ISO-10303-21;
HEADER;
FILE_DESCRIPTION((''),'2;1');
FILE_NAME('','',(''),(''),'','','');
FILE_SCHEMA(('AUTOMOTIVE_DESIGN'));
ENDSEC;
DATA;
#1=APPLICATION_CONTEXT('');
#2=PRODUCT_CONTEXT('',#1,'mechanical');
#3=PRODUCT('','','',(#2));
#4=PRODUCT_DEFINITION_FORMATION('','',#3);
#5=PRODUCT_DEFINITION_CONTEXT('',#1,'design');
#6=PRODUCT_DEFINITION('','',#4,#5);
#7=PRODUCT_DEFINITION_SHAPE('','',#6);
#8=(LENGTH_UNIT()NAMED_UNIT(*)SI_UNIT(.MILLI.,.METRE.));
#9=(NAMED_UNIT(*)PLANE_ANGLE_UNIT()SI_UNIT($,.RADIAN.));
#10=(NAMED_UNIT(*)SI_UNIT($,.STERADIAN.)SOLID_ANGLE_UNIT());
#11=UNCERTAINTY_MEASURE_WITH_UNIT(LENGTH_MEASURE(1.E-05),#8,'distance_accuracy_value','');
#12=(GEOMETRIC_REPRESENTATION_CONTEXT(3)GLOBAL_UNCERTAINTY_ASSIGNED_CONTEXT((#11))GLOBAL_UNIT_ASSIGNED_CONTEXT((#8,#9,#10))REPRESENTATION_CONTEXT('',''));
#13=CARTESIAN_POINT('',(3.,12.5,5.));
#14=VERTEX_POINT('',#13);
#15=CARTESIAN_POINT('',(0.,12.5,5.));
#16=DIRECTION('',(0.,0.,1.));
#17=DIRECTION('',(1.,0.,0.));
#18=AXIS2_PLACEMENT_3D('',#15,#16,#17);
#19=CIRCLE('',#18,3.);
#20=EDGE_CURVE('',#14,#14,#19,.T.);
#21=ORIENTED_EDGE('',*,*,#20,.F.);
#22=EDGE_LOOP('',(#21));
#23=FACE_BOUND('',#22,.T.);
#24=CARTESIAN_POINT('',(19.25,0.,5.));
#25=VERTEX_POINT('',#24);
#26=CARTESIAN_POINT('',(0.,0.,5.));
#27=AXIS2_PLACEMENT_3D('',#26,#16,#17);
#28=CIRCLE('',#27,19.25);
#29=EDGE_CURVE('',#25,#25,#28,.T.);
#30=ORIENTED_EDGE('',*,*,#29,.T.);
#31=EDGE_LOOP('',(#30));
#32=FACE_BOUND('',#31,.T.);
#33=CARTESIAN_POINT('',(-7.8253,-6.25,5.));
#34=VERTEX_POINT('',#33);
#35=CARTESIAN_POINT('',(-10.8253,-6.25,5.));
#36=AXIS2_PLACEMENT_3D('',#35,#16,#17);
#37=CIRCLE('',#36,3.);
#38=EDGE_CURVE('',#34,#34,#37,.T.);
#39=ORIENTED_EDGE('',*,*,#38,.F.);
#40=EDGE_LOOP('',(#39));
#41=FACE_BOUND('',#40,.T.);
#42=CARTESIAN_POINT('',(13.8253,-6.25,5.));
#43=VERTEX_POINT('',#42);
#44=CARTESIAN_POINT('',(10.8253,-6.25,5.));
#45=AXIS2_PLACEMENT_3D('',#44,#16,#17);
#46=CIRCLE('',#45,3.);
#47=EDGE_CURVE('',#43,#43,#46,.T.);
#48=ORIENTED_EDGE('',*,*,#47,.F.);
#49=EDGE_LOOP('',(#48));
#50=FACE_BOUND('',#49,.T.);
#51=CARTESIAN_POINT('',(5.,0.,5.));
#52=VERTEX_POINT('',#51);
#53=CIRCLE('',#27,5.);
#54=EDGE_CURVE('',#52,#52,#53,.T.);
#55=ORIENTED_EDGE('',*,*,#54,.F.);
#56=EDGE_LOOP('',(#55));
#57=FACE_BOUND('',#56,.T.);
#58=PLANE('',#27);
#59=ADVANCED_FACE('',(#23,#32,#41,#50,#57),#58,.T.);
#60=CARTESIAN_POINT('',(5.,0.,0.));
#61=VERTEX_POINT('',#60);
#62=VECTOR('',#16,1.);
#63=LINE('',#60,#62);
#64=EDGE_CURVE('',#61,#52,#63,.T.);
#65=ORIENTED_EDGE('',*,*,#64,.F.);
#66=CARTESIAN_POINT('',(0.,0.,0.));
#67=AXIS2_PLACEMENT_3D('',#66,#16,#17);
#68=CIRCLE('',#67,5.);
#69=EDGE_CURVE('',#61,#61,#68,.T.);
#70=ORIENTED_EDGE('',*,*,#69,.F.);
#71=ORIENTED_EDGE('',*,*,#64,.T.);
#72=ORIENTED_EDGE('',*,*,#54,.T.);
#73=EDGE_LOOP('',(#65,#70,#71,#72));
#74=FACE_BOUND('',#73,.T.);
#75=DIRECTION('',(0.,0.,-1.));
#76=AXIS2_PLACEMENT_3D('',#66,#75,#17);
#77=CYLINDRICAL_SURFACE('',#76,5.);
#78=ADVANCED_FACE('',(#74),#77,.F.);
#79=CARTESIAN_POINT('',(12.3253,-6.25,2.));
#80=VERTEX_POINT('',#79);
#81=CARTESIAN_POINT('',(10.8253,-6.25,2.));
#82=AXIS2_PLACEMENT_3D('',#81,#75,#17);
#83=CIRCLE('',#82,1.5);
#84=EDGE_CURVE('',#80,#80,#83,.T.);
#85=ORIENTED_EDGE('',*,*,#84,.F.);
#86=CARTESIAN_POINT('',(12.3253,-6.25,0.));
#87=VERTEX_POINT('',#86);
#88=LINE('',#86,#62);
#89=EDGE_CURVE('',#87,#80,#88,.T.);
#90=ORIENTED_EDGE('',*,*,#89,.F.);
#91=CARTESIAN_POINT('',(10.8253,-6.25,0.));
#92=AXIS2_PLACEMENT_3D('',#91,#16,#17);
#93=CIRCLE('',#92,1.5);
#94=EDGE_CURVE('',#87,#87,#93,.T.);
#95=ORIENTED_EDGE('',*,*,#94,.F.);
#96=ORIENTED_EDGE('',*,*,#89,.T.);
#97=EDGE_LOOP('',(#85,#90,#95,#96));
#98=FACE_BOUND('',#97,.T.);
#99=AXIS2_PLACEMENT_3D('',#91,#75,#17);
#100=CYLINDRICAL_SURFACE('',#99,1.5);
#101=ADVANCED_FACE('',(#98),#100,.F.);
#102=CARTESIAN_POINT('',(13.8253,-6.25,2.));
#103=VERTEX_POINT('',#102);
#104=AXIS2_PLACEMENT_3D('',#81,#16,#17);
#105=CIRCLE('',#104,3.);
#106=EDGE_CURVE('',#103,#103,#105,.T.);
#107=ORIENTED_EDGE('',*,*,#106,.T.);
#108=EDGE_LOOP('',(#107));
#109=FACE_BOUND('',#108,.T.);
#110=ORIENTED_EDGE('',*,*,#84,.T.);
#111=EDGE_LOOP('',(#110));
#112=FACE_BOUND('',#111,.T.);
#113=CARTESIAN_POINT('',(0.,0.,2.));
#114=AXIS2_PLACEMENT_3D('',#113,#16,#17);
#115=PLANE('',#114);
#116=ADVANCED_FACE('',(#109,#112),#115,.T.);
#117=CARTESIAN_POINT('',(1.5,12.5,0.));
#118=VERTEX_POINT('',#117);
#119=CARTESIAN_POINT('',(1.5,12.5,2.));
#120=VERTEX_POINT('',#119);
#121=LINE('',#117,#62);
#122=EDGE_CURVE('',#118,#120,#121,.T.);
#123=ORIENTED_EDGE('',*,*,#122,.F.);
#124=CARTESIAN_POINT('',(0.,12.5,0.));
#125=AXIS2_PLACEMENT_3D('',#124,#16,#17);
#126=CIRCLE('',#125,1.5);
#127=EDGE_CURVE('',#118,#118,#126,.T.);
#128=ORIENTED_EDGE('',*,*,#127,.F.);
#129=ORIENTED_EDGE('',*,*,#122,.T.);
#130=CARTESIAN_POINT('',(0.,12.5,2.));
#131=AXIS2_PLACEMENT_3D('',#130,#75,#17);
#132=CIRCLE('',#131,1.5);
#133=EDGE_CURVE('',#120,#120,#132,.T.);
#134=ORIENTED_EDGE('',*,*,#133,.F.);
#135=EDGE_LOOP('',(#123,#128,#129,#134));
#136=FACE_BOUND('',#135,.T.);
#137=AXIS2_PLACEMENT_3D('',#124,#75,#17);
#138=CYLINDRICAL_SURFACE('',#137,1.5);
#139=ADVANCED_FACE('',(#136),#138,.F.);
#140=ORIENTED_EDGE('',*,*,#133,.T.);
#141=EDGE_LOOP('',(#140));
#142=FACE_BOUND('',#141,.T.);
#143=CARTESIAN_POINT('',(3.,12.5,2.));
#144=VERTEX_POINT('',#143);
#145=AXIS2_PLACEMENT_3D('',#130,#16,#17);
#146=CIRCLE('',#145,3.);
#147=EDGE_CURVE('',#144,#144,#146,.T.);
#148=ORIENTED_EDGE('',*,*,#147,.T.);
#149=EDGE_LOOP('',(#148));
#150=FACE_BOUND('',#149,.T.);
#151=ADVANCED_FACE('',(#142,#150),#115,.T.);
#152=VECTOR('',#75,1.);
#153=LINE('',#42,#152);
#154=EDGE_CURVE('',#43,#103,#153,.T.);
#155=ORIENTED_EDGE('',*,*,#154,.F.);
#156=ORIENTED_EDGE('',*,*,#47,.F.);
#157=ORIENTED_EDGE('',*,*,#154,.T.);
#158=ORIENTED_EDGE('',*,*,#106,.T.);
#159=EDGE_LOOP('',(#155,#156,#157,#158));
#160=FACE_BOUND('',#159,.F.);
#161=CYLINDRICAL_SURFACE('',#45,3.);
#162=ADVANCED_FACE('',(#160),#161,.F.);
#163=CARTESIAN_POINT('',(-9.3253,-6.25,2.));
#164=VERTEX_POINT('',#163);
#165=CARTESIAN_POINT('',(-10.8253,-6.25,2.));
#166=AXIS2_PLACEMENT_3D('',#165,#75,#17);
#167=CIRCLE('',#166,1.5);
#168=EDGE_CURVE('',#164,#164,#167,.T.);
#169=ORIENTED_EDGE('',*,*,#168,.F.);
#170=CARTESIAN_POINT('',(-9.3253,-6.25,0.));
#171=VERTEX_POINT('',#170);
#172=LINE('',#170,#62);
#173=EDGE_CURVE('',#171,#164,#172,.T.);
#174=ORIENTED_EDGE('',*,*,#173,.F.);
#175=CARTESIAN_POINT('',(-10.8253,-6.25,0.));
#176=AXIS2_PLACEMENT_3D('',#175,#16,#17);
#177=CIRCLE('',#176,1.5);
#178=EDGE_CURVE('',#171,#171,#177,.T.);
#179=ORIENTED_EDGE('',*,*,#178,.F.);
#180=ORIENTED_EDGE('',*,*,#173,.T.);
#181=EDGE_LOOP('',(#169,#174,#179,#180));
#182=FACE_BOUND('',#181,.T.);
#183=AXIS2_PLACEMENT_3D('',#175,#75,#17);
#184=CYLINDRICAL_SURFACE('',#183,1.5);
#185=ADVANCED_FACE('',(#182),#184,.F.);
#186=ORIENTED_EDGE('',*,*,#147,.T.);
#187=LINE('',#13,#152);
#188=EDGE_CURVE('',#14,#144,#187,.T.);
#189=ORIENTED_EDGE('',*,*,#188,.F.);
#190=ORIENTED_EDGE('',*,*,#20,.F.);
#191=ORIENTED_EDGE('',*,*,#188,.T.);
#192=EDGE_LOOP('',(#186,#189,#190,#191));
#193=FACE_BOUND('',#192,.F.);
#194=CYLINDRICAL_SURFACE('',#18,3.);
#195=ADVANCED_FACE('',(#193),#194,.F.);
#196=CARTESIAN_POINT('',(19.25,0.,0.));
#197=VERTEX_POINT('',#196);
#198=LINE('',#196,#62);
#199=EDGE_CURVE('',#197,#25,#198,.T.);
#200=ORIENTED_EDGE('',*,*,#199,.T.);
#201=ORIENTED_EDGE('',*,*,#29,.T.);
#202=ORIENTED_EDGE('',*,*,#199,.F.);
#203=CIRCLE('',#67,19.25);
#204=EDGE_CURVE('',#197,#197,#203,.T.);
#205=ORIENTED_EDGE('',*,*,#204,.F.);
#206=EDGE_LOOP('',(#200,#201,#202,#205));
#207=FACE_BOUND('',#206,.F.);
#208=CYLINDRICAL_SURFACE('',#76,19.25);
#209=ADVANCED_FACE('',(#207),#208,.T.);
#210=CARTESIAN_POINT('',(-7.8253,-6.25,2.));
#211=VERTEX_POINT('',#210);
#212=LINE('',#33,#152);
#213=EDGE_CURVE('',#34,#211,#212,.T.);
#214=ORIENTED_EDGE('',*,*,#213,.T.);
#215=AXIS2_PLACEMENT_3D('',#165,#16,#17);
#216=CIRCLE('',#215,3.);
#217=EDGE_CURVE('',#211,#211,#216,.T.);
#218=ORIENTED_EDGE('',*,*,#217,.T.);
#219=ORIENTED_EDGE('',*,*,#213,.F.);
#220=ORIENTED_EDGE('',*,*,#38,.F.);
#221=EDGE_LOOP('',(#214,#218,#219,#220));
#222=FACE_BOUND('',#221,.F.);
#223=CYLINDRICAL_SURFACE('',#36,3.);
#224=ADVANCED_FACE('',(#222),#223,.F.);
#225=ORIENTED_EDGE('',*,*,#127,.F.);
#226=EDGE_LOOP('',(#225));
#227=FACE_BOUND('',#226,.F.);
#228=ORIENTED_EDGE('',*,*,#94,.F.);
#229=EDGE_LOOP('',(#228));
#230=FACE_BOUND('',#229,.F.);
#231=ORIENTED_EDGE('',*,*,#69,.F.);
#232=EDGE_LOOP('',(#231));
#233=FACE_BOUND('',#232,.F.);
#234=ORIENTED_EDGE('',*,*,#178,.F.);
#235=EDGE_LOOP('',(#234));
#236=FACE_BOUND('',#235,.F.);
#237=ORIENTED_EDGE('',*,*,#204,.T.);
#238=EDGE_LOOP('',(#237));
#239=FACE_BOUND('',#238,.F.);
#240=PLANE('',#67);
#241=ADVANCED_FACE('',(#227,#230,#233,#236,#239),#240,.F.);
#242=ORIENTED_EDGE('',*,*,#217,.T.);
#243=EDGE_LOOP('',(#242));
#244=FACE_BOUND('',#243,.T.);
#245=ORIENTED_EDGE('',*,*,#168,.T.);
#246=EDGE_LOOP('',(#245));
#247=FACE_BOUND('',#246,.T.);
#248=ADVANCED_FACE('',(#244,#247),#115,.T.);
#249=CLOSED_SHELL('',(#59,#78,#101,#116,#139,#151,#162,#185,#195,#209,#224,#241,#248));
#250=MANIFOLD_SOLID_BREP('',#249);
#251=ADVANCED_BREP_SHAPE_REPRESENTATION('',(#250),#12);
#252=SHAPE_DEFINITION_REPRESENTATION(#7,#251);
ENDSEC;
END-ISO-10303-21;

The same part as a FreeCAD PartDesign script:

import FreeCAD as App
import Part
import Sketcher

doc = App.newDocument("Part")
body = doc.addObject("PartDesign::Body", "Body")

# Sketch on XY plane
sketch1 = doc.addObject("Sketcher::SketchObject", "Sketch")
body.addObject(sketch1)
sketch1.AttachmentSupport = (doc.XY_Plane, [""])
sketch1.MapMode = "FlatFace"
sketch1.addGeometry(Part.Circle(App.Vector(0, 0, 0), App.Vector(0, 0, 1), 19.25), False)
sketch1.addGeometry(Part.Circle(App.Vector(-10.8253, -6.25, 0), App.Vector(0, 0, 1), 1.5), False)
sketch1.addGeometry(Part.Circle(App.Vector(10.8253, -6.25, 0), App.Vector(0, 0, 1), 1.5), False)
sketch1.addGeometry(Part.Circle(App.Vector(0, 0, 0), App.Vector(0, 0, 1), 5), False)
sketch1.addGeometry(Part.Circle(App.Vector(0, 12.5, 0), App.Vector(0, 0, 1), 1.5), False)
sketch1.addConstraint(Sketcher.Constraint("Coincident", 0, 3, -1, 1))
sketch1.addConstraint(Sketcher.Constraint("Coincident", 3, 3, -1, 1))
sketch1.addConstraint(Sketcher.Constraint("Equal", 1, 2))
sketch1.addConstraint(Sketcher.Constraint("Equal", 2, 4))
sketch1.addConstraint(Sketcher.Constraint("Symmetric", 1, 3, 2, 3, -2))
sketch1.addConstraint(Sketcher.Constraint("PointOnObject", 4, 3, -2))
sketch1.addConstraint(Sketcher.Constraint("Diameter", 1, 3.0))
sketch1.addConstraint(Sketcher.Constraint("Diameter", 3, 10.0))
sketch1.addConstraint(Sketcher.Constraint("Diameter", 0, 38.5))
sketch1.addConstraint(Sketcher.Constraint("DistanceY", -1, 1, 4, 3, 12.5))
sketch1.addConstraint(Sketcher.Constraint("DistanceY", 1, 3, -1, 1, 6.25))
sketch1.addConstraint(Sketcher.Constraint("DistanceX", 1, 3, -1, 1, 10.8253))
pad1 = doc.addObject("PartDesign::Pad", "Pad")
body.addObject(pad1)
pad1.Profile = sketch1
pad1.Length = 5

# Sketch on XY plane
sketch2 = doc.addObject("Sketcher::SketchObject", "Sketch001")
body.addObject(sketch2)
sketch2.AttachmentSupport = (doc.XY_Plane, [""])
sketch2.MapMode = "FlatFace"
sketch2.AttachmentOffset = App.Placement(App.Vector(0, 0, 5), App.Rotation())
sketch2.addGeometry(Part.Circle(App.Vector(0, 12.5, 0), App.Vector(0, 0, 1), 3), False)
sketch2.addGeometry(Part.Circle(App.Vector(10.8253, -6.25, 0), App.Vector(0, 0, 1), 3), False)
sketch2.addGeometry(Part.Circle(App.Vector(-10.8253, -6.25, 0), App.Vector(0, 0, 1), 3), False)
sketch2.addConstraint(Sketcher.Constraint("Equal", 0, 1))
sketch2.addConstraint(Sketcher.Constraint("Equal", 1, 2))
sketch2.addConstraint(Sketcher.Constraint("Symmetric", 1, 3, 2, 3, -2))
sketch2.addConstraint(Sketcher.Constraint("PointOnObject", 0, 3, -2))
sketch2.addConstraint(Sketcher.Constraint("Diameter", 0, 6.0))
sketch2.addConstraint(Sketcher.Constraint("DistanceY", -1, 1, 0, 3, 12.5))
sketch2.addConstraint(Sketcher.Constraint("DistanceY", 1, 3, -1, 1, 6.25))
sketch2.addConstraint(Sketcher.Constraint("DistanceX", -1, 1, 1, 3, 10.8253))
pocket1 = doc.addObject("PartDesign::Pocket", "Pocket")
body.addObject(pocket1)
pocket1.Profile = sketch2
pocket1.Length = 3

doc.recompute()
